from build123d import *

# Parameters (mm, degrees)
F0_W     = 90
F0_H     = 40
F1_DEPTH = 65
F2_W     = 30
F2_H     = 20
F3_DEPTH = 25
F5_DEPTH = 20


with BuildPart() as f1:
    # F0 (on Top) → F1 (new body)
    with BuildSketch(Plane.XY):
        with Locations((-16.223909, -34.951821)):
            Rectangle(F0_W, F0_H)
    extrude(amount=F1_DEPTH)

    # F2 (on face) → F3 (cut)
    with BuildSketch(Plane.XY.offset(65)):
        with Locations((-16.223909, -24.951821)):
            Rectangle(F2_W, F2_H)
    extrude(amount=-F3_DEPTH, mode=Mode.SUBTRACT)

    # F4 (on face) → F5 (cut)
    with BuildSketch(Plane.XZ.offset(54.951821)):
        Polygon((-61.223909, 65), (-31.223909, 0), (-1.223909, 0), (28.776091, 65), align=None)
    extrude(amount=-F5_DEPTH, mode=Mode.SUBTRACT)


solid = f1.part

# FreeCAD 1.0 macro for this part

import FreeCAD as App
import Part
import Sketcher
Q = App.Units.Quantity

doc = App.newDocument("Part")
body = doc.addObject("PartDesign::Body", "Body")

sketch1 = doc.addObject("Sketcher::SketchObject", "Sketch")
body.addObject(sketch1)
sketch1.AttachmentSupport = (doc.XY_Plane, [""])
sketch1.MapMode = "FlatFace"
sketch1.addGeometry(Part.LineSegment(App.Vector(-61.223909, -14.951821, 0), App.Vector(-61.223909, -54.951821, 0)), False)
sketch1.addGeometry(Part.LineSegment(App.Vector(-61.223909, -54.951821, 0), App.Vector(28.776091, -54.951821, 0)), False)
sketch1.addGeometry(Part.LineSegment(App.Vector(28.776091, -54.951821, 0), App.Vector(28.776091, -14.951821, 0)), False)
sketch1.addGeometry(Part.LineSegment(App.Vector(28.776091, -14.951821, 0), App.Vector(-61.223909, -14.951821, 0)), False)
sketch1.addConstraint(Sketcher.Constraint("Coincident", 0, 2, 1, 1))
sketch1.addConstraint(Sketcher.Constraint("Coincident", 1, 2, 2, 1))
sketch1.addConstraint(Sketcher.Constraint("Coincident", 2, 2, 3, 1))
sketch1.addConstraint(Sketcher.Constraint("Coincident", 3, 2, 0, 1))
sketch1.addConstraint(Sketcher.Constraint("Vertical", 0))
sketch1.addConstraint(Sketcher.Constraint("Horizontal", 1))
sketch1.addConstraint(Sketcher.Constraint("Vertical", 2))
sketch1.addConstraint(Sketcher.Constraint("Horizontal", 3))
sketch1.addConstraint(Sketcher.Constraint("DistanceX", 1, 1, 1, 2, Q("90 mm")))
sketch1.addConstraint(Sketcher.Constraint("DistanceY", 0, 2, 0, 1, Q("40 mm")))
sketch1.addConstraint(Sketcher.Constraint("DistanceX", 0, 2, -1, 1, Q("61.223909 mm")))
sketch1.addConstraint(Sketcher.Constraint("DistanceY", 0, 2, -1, 1, Q("54.951821 mm")))
pad1 = doc.addObject("PartDesign::Pad", "Pad")
body.addObject(pad1)
pad1.Profile = sketch1
pad1.Length = 65

sketch2 = doc.addObject("Sketcher::SketchObject", "Sketch001")
body.addObject(sketch2)
sketch2.AttachmentSupport = (doc.XY_Plane, [""])
sketch2.MapMode = "FlatFace"
sketch2.AttachmentOffset = App.Placement(App.Vector(0, 0, 65), App.Rotation())
sketch2.addGeometry(Part.LineSegment(App.Vector(-31.223909, -14.951821, 0), App.Vector(-31.223909, -34.951821, 0)), False)
sketch2.addGeometry(Part.LineSegment(App.Vector(-31.223909, -34.951821, 0), App.Vector(-1.223909, -34.951821, 0)), False)
sketch2.addGeometry(Part.LineSegment(App.Vector(-1.223909, -34.951821, 0), App.Vector(-1.223909, -14.951821, 0)), False)
sketch2.addGeometry(Part.LineSegment(App.Vector(-1.223909, -14.951821, 0), App.Vector(-31.223909, -14.951821, 0)), False)
sketch2.addConstraint(Sketcher.Constraint("Coincident", 0, 2, 1, 1))
sketch2.addConstraint(Sketcher.Constraint("Coincident", 1, 2, 2, 1))
sketch2.addConstraint(Sketcher.Constraint("Coincident", 2, 2, 3, 1))
sketch2.addConstraint(Sketcher.Constraint("Coincident", 3, 2, 0, 1))
sketch2.addConstraint(Sketcher.Constraint("Vertical", 0))
sketch2.addConstraint(Sketcher.Constraint("Horizontal", 1))
sketch2.addConstraint(Sketcher.Constraint("Vertical", 2))
sketch2.addConstraint(Sketcher.Constraint("Horizontal", 3))
sketch2.addConstraint(Sketcher.Constraint("DistanceX", 1, 1, 1, 2, Q("30 mm")))
sketch2.addConstraint(Sketcher.Constraint("DistanceY", 0, 2, 0, 1, Q("20 mm")))
sketch2.addConstraint(Sketcher.Constraint("DistanceX", 0, 2, -1, 1, Q("31.223909 mm")))
sketch2.addConstraint(Sketcher.Constraint("DistanceY", 0, 2, -1, 1, Q("34.951821 mm")))
pocket1 = doc.addObject("PartDesign::Pocket", "Pocket")
body.addObject(pocket1)
pocket1.Profile = sketch2
pocket1.Length = 25

sketch3 = doc.addObject("Sketcher::SketchObject", "Sketch002")
body.addObject(sketch3)
sketch3.AttachmentSupport = (doc.XZ_Plane, [""])
sketch3.MapMode = "FlatFace"
sketch3.AttachmentOffset = App.Placement(App.Vector(0, 0, 54.951821), App.Rotation())
sketch3.addGeometry(Part.LineSegment(App.Vector(-61.223909, 65, 0), App.Vector(-31.223909, 0, 0)), False)
sketch3.addGeometry(Part.LineSegment(App.Vector(-31.223909, 0, 0), App.Vector(-1.223909, 0, 0)), False)
sketch3.addGeometry(Part.LineSegment(App.Vector(-1.223909, 0, 0), App.Vector(28.776091, 65, 0)), False)
sketch3.addGeometry(Part.LineSegment(App.Vector(28.776091, 65, 0), App.Vector(-61.223909, 65, 0)), False)
sketch3.addConstraint(Sketcher.Constraint("Coincident", 0, 2, 1, 1))
sketch3.addConstraint(Sketcher.Constraint("Coincident", 1, 2, 2, 1))
sketch3.addConstraint(Sketcher.Constraint("Coincident", 2, 2, 3, 1))
sketch3.addConstraint(Sketcher.Constraint("Coincident", 3, 2, 0, 1))
sketch3.addConstraint(Sketcher.Constraint("Horizontal", 1))
sketch3.addConstraint(Sketcher.Constraint("Horizontal", 3))
sketch3.addConstraint(Sketcher.Constraint("PointOnObject", 0, 2, -1))
sketch3.addConstraint(Sketcher.Constraint("Equal", 0, 2))
sketch3.addConstraint(Sketcher.Constraint("DistanceX", 1, 1, 1, 2, Q("30 mm")))
sketch3.addConstraint(Sketcher.Constraint("DistanceX", 3, 2, 3, 1, Q("90 mm")))
sketch3.addConstraint(Sketcher.Constraint("DistanceY", -1, 1, 2, 2, Q("65 mm")))
sketch3.addConstraint(Sketcher.Constraint("DistanceX", 0, 2, -1, 1, Q("31.223909 mm")))
pocket2 = doc.addObject("PartDesign::Pocket", "Pocket001")
body.addObject(pocket2)
pocket2.Profile = sketch3
pocket2.Length = 20

doc.recompute()
